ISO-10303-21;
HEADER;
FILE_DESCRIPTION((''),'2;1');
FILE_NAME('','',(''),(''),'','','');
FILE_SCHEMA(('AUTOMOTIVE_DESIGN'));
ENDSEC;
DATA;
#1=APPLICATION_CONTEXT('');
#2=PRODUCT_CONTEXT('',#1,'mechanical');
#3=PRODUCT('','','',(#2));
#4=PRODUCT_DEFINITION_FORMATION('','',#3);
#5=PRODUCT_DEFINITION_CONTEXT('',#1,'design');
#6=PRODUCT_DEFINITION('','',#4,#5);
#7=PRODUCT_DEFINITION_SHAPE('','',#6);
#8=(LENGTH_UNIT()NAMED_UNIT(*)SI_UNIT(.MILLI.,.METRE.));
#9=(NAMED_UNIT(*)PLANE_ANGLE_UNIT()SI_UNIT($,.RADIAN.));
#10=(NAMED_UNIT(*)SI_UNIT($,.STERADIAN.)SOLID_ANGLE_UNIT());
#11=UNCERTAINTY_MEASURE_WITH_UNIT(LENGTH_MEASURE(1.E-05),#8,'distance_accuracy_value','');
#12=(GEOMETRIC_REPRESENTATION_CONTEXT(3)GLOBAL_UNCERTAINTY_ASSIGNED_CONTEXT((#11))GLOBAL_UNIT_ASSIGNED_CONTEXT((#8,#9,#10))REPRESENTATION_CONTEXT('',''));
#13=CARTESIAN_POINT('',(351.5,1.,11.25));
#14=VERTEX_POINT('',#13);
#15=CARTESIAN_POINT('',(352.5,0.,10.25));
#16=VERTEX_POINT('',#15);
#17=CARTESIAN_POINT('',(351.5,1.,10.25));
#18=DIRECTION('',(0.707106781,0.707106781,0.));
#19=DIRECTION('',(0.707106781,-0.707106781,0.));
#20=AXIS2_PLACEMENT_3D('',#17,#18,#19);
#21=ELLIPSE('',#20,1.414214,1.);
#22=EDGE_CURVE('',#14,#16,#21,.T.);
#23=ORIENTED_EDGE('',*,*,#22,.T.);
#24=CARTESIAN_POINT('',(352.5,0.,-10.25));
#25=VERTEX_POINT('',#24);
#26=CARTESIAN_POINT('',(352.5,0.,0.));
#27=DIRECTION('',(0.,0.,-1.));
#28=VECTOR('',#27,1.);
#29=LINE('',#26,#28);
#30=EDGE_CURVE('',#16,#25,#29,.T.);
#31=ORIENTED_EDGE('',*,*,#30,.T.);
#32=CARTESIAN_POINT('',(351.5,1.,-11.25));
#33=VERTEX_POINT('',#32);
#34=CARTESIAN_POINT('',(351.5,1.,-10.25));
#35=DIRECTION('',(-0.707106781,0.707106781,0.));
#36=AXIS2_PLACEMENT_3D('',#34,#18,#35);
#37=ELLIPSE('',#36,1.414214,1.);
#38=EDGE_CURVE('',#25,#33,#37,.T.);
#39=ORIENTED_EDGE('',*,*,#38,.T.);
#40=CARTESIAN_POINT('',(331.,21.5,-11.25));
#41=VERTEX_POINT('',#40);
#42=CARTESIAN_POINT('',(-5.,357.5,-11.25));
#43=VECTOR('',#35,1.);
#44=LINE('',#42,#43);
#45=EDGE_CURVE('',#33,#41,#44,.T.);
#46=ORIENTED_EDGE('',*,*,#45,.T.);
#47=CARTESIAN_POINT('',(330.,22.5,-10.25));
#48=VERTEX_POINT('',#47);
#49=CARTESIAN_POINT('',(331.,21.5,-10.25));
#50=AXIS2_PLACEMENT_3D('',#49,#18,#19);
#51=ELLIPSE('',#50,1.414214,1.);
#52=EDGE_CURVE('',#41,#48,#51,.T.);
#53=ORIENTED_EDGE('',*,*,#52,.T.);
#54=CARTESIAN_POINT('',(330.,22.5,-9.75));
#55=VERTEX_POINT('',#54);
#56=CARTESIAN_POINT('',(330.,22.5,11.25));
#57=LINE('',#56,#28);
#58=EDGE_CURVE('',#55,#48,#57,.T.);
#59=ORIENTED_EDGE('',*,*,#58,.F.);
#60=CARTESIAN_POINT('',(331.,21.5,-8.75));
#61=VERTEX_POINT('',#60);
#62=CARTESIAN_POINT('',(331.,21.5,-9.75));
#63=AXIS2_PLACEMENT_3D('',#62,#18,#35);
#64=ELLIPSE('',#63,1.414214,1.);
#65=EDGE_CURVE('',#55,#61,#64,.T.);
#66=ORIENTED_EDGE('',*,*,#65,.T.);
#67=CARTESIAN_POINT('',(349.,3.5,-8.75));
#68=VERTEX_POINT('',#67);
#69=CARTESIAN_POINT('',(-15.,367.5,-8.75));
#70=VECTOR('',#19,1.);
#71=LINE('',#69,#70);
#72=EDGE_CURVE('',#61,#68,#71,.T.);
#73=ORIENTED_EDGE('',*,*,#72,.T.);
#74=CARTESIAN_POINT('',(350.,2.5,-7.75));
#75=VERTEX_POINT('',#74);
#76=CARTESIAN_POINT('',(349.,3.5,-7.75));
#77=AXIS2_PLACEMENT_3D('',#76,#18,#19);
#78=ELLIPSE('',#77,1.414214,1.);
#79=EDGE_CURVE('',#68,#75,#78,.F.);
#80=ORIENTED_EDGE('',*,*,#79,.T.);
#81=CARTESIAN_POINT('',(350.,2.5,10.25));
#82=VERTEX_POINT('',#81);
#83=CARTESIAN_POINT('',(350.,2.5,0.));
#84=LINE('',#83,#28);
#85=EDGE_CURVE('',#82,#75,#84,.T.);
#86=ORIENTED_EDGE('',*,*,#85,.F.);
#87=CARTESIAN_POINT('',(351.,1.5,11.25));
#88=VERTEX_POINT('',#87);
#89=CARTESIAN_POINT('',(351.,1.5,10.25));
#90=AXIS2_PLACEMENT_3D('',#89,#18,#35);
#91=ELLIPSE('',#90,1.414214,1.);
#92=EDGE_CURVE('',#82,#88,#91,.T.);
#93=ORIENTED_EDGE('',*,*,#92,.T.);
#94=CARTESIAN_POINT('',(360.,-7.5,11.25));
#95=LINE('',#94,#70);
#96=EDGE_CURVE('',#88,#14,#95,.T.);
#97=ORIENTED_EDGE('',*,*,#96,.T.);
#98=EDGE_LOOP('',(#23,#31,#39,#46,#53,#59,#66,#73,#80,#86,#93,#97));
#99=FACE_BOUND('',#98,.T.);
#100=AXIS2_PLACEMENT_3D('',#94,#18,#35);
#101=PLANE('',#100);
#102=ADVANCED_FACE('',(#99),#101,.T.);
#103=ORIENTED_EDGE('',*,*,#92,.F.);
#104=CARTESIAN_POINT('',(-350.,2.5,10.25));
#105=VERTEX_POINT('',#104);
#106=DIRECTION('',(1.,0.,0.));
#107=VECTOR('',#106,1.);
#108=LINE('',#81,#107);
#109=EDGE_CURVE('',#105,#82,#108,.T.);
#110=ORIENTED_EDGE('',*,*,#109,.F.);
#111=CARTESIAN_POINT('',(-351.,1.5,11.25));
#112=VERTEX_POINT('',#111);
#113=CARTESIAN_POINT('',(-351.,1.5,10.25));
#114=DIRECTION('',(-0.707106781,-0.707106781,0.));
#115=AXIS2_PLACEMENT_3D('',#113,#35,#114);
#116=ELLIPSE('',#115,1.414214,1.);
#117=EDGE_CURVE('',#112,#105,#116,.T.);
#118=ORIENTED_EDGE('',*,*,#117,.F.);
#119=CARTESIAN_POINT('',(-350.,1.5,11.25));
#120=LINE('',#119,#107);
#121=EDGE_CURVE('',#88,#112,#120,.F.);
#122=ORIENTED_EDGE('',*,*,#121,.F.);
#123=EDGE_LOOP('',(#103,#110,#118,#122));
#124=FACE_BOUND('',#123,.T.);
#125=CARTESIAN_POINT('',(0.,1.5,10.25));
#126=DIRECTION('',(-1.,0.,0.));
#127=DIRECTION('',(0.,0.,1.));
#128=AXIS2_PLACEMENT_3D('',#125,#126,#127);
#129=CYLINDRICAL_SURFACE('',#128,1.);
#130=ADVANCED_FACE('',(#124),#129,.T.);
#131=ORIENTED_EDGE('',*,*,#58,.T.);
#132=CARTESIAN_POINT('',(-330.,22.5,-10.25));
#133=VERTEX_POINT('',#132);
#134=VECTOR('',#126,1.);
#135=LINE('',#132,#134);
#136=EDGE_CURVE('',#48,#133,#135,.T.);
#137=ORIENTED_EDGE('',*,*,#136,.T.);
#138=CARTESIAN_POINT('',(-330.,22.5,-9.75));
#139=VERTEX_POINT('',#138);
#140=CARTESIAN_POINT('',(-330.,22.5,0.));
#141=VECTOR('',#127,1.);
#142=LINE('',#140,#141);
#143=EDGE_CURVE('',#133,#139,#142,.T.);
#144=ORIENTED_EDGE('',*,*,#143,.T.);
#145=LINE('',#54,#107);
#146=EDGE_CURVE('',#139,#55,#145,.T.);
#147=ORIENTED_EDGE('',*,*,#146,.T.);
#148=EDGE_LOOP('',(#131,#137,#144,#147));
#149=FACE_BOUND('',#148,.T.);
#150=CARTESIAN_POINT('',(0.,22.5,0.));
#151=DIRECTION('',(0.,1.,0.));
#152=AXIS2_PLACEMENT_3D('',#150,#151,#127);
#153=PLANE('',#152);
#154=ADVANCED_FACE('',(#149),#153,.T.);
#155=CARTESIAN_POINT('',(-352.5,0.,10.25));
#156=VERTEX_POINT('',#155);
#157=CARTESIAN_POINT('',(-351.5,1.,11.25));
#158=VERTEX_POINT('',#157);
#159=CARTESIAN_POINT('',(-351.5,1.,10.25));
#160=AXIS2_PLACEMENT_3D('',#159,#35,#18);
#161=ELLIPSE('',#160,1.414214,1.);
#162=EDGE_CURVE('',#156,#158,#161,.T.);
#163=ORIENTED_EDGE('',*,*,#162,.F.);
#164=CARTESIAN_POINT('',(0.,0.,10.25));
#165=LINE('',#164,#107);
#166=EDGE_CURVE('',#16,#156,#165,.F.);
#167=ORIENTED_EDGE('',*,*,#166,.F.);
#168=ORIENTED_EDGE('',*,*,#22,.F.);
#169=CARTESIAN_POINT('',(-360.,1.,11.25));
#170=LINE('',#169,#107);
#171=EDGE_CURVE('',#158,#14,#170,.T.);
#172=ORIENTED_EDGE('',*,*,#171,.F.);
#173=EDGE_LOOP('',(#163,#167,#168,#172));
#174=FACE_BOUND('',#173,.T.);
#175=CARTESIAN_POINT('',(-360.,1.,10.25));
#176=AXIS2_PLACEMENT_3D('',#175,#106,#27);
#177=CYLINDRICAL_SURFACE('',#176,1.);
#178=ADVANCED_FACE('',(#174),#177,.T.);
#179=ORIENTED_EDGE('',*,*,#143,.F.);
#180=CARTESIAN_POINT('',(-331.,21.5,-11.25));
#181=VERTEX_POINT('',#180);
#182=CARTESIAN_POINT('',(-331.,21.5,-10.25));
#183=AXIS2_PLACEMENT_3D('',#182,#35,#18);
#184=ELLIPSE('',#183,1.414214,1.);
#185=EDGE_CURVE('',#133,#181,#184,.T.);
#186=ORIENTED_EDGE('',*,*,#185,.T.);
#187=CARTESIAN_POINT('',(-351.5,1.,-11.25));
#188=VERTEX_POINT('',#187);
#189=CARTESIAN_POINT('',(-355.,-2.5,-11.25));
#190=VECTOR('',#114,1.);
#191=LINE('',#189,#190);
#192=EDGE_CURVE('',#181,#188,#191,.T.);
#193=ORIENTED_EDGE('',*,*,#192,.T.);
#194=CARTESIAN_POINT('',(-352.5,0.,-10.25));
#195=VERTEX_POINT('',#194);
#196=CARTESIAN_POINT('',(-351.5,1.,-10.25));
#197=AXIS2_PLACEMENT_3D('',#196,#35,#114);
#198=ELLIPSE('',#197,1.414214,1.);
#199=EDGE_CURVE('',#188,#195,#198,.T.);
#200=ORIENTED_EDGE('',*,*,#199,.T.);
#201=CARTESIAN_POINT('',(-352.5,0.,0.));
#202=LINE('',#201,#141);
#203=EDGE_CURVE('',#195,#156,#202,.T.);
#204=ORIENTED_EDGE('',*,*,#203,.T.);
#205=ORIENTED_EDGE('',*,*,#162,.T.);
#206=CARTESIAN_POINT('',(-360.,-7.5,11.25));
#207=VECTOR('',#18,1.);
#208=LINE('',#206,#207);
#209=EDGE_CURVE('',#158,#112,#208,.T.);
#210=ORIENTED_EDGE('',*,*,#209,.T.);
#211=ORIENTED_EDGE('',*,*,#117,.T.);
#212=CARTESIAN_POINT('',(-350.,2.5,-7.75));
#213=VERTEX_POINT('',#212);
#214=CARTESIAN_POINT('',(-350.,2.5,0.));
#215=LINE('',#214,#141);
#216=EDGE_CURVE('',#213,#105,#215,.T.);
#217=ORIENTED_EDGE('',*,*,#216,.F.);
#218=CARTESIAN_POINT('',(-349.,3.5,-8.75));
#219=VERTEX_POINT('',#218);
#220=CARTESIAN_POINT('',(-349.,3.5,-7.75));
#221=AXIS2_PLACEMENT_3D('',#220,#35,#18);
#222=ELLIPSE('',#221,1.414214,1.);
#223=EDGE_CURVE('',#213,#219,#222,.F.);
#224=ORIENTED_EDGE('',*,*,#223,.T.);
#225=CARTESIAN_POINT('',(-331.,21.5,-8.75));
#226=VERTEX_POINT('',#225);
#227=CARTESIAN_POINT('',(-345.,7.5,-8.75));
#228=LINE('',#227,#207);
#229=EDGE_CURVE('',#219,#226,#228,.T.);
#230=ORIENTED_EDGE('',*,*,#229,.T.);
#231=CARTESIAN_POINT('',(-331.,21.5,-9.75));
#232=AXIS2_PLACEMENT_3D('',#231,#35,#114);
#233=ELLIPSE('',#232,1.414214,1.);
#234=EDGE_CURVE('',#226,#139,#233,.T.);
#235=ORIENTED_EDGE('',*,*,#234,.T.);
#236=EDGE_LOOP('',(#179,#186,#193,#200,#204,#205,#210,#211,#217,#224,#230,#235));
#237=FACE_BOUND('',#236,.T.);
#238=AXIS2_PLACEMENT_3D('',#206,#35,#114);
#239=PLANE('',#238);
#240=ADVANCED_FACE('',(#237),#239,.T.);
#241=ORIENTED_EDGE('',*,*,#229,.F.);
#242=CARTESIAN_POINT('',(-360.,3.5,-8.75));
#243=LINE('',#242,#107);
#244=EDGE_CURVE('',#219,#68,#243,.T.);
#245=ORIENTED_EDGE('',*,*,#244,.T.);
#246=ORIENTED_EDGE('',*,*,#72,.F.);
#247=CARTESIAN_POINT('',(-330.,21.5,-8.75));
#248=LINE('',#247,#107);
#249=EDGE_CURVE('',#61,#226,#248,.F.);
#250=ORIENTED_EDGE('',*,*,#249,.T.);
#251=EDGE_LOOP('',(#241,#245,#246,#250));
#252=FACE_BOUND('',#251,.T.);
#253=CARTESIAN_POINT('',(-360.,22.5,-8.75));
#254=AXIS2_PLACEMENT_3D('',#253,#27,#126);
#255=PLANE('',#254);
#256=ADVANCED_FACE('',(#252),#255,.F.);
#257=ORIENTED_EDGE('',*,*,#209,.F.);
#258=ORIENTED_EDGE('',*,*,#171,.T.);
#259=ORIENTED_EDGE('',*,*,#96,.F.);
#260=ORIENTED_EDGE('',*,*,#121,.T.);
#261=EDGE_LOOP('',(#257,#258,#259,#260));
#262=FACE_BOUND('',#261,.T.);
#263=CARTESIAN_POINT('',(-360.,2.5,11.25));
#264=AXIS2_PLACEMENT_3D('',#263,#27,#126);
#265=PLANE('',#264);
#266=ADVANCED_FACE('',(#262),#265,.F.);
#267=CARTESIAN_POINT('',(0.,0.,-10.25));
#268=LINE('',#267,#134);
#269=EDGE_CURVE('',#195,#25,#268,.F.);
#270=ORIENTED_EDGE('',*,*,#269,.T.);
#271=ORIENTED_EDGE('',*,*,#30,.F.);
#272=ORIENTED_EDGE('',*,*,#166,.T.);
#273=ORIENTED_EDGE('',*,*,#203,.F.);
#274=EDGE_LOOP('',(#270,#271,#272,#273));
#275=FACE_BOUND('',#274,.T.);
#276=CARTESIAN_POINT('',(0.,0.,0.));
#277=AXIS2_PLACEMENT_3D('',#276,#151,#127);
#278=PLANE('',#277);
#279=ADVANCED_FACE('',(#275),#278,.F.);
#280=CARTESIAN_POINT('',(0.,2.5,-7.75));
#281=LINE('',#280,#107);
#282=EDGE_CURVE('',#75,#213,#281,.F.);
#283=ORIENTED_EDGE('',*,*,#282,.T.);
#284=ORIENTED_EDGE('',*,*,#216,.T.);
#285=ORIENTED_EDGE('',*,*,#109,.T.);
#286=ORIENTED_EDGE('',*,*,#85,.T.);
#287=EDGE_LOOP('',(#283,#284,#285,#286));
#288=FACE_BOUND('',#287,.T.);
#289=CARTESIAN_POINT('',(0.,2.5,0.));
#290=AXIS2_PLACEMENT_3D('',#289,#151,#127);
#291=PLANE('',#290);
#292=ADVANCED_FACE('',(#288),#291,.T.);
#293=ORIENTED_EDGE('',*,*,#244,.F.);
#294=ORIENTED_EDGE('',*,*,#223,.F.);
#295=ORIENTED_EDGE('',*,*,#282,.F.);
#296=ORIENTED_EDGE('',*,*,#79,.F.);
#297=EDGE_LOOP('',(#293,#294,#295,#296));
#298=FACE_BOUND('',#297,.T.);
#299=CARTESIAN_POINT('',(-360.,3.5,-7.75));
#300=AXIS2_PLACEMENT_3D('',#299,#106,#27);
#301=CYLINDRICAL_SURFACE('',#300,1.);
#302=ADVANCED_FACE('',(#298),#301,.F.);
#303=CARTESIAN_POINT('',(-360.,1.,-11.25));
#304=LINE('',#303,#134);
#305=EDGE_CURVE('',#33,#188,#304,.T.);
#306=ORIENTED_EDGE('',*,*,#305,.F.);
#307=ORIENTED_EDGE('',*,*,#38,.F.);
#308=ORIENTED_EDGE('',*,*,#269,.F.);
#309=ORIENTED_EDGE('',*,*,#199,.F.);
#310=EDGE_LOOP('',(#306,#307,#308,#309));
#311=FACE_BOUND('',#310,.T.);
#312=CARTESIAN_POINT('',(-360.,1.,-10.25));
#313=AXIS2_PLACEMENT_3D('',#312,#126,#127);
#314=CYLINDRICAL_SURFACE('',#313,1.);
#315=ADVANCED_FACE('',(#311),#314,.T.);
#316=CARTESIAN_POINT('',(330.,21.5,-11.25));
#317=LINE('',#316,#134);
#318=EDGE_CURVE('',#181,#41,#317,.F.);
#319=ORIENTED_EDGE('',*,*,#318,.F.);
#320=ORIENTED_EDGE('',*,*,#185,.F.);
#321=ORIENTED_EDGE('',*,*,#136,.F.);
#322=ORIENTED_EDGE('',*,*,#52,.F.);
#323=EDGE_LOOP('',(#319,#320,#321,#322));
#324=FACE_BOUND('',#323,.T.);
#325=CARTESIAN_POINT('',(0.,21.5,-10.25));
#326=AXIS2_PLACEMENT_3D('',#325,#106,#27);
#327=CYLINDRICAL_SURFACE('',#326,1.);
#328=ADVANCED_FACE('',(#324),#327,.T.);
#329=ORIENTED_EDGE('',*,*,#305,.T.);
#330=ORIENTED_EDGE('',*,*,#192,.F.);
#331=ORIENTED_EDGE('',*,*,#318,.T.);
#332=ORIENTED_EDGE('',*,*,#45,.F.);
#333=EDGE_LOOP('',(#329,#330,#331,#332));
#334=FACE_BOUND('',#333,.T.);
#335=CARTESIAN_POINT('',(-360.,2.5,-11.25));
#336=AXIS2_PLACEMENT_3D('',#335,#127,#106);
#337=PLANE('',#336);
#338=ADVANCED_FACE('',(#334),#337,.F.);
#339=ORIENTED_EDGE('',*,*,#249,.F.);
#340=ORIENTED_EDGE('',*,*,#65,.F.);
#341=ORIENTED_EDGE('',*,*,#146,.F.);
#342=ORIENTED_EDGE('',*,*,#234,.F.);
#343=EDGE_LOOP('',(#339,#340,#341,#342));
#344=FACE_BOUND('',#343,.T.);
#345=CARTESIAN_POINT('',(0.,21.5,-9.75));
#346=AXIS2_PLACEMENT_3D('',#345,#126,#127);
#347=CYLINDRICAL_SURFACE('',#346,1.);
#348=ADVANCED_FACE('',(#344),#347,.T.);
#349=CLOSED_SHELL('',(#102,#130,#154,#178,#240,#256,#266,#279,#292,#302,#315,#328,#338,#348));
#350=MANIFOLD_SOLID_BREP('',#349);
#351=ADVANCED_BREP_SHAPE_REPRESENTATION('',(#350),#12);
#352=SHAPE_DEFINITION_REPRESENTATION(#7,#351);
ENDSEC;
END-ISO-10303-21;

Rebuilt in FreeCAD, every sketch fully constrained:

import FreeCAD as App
import Part
import Sketcher


def edges_at(feature, points):
    """Names of the edges that pass closest to the given points."""
    edges = feature.Shape.Edges
    near = lambda p: min(range(len(edges)), key=lambda i: edges[i].distToShape(Part.Vertex(*p))[0])
    return sorted({f"Edge{near(p) + 1}" for p in points})


def add_polygon(sketch, points):
    """Adds a closed chain of lines whose ends are joined by coincident constraints."""
    first, n = sketch.GeometryCount, len(points)
    for a, b in zip(points, points[1:] + points[:1]):
        sketch.addGeometry(Part.LineSegment(App.Vector(*a, 0), App.Vector(*b, 0)), False)
    for i in range(n):
        sketch.addConstraint(Sketcher.Constraint("Coincident", first + i, 2, first + (i + 1) % n, 1))

doc = App.newDocument("Part")
body = doc.addObject("PartDesign::Body", "Body")

# Sketch on XZ plane
sketch1 = doc.addObject("Sketcher::SketchObject", "Sketch")
body.addObject(sketch1)
sketch1.AttachmentSupport = (doc.XZ_Plane, [""])
sketch1.MapMode = "FlatFace"
add_polygon(sketch1, [(-360, -11), (-360, 11), (360, 11), (360, -11)])  # lines 0-3
sketch1.addConstraint(Sketcher.Constraint("Vertical", 0))
sketch1.addConstraint(Sketcher.Constraint("Horizontal", 1))
sketch1.addConstraint(Sketcher.Constraint("Vertical", 2))
sketch1.addConstraint(Sketcher.Constraint("Horizontal", 3))
sketch1.addConstraint(Sketcher.Constraint("Symmetric", 0, 2, 2, 2, -1, 1))
sketch1.addConstraint(Sketcher.Constraint("DistanceX", 1, 1, 1, 2, 720.0))
sketch1.addConstraint(Sketcher.Constraint("DistanceY", 0, 1, 0, 2, 22.5))
pad1 = doc.addObject("PartDesign::Pad", "Pad")
body.addObject(pad1)
pad1.Profile = sketch1
pad1.Length = 2.5
pad1.Reversed = True

# Sketch on XZ plane
sketch2 = doc.addObject("Sketcher::SketchObject", "Sketch001")
body.addObject(sketch2)
sketch2.AttachmentSupport = (doc.XZ_Plane, [""])
sketch2.MapMode = "FlatFace"
sketch2.AttachmentOffset = App.Placement(App.Vector(0, 0, -2.5), App.Rotation())
add_polygon(sketch2, [(-360, -11.2), (-360, -8.8), (360, -8.8), (360, -11.2)])  # lines 0-3
sketch2.addConstraint(Sketcher.Constraint("Vertical", 0))
sketch2.addConstraint(Sketcher.Constraint("Horizontal", 1))
sketch2.addConstraint(Sketcher.Constraint("Vertical", 2))
sketch2.addConstraint(Sketcher.Constraint("Horizontal", 3))
sketch2.addConstraint(Sketcher.Constraint("DistanceX", 1, 1, 1, 2, 720.0))
sketch2.addConstraint(Sketcher.Constraint("DistanceY", 0, 1, 0, 2, 2.5))
sketch2.addConstraint(Sketcher.Constraint("DistanceX", 0, 2, -1, 1, 360.0))
sketch2.addConstraint(Sketcher.Constraint("DistanceY", 0, 2, -1, 1, 8.75))
pad2 = doc.addObject("PartDesign::Pad", "Pad001")
body.addObject(pad2)
pad2.Profile = sketch2
pad2.Length = 20
pad2.Reversed = True

# Sketch on XY plane
sketch3 = doc.addObject("Sketcher::SketchObject", "Sketch002")
body.addObject(sketch3)
sketch3.AttachmentSupport = (doc.XY_Plane, [""])
sketch3.MapMode = "FlatFace"
sketch3.AttachmentOffset = App.Placement(App.Vector(0, 0, -8.75), App.Rotation())
add_polygon(sketch3, [(-360, 22), (-360, -8), (-330, 22)])  # lines 0-2
add_polygon(sketch3, [(360, -8), (360, 22), (330, 22)])  # lines 3-5
sketch3.addConstraint(Sketcher.Constraint("Vertical", 0))
sketch3.addConstraint(Sketcher.Constraint("Horizontal", 2))
sketch3.addConstraint(Sketcher.Constraint("Vertical", 3))
sketch3.addConstraint(Sketcher.Constraint("Horizontal", 4))
sketch3.addConstraint(Sketcher.Constraint("Symmetric", 2, 2, 3, 2, -2))
sketch3.addConstraint(Sketcher.Constraint("Perpendicular", 1, 5))
sketch3.addConstraint(Sketcher.Constraint("Horizontal", 0, 2, 5, 2))
sketch3.addConstraint(Sketcher.Constraint("Equal", 2, 4))
sketch3.addConstraint(Sketcher.Constraint("DistanceX", 2, 2, 2, 1, 30.0))
sketch3.addConstraint(Sketcher.Constraint("DistanceX", 0, 2, -1, 1, 360.0))
sketch3.addConstraint(Sketcher.Constraint("DistanceY", 0, 2, -1, 1, 7.5))
pocket1 = doc.addObject("PartDesign::Pocket", "Pocket")
body.addObject(pocket1)
pocket1.Profile = sketch3
pocket1.Type = "ThroughAll"
pocket1.Midplane = True
doc.recompute()

fillet = doc.addObject("PartDesign::Fillet", "Fillet")
body.addObject(fillet)
fillet.Base = (pocket1, edges_at(pocket1, [
    (0, 22.5, -8.75),
    (0, 2.5, -8.75),
    (0, 0, 11.25),
    (0, 2.5, 11.25),
    (0, 22.5, -11.25),
    (0, 0, -11.25),
]))
fillet.Radius = 1

doc.recompute()
